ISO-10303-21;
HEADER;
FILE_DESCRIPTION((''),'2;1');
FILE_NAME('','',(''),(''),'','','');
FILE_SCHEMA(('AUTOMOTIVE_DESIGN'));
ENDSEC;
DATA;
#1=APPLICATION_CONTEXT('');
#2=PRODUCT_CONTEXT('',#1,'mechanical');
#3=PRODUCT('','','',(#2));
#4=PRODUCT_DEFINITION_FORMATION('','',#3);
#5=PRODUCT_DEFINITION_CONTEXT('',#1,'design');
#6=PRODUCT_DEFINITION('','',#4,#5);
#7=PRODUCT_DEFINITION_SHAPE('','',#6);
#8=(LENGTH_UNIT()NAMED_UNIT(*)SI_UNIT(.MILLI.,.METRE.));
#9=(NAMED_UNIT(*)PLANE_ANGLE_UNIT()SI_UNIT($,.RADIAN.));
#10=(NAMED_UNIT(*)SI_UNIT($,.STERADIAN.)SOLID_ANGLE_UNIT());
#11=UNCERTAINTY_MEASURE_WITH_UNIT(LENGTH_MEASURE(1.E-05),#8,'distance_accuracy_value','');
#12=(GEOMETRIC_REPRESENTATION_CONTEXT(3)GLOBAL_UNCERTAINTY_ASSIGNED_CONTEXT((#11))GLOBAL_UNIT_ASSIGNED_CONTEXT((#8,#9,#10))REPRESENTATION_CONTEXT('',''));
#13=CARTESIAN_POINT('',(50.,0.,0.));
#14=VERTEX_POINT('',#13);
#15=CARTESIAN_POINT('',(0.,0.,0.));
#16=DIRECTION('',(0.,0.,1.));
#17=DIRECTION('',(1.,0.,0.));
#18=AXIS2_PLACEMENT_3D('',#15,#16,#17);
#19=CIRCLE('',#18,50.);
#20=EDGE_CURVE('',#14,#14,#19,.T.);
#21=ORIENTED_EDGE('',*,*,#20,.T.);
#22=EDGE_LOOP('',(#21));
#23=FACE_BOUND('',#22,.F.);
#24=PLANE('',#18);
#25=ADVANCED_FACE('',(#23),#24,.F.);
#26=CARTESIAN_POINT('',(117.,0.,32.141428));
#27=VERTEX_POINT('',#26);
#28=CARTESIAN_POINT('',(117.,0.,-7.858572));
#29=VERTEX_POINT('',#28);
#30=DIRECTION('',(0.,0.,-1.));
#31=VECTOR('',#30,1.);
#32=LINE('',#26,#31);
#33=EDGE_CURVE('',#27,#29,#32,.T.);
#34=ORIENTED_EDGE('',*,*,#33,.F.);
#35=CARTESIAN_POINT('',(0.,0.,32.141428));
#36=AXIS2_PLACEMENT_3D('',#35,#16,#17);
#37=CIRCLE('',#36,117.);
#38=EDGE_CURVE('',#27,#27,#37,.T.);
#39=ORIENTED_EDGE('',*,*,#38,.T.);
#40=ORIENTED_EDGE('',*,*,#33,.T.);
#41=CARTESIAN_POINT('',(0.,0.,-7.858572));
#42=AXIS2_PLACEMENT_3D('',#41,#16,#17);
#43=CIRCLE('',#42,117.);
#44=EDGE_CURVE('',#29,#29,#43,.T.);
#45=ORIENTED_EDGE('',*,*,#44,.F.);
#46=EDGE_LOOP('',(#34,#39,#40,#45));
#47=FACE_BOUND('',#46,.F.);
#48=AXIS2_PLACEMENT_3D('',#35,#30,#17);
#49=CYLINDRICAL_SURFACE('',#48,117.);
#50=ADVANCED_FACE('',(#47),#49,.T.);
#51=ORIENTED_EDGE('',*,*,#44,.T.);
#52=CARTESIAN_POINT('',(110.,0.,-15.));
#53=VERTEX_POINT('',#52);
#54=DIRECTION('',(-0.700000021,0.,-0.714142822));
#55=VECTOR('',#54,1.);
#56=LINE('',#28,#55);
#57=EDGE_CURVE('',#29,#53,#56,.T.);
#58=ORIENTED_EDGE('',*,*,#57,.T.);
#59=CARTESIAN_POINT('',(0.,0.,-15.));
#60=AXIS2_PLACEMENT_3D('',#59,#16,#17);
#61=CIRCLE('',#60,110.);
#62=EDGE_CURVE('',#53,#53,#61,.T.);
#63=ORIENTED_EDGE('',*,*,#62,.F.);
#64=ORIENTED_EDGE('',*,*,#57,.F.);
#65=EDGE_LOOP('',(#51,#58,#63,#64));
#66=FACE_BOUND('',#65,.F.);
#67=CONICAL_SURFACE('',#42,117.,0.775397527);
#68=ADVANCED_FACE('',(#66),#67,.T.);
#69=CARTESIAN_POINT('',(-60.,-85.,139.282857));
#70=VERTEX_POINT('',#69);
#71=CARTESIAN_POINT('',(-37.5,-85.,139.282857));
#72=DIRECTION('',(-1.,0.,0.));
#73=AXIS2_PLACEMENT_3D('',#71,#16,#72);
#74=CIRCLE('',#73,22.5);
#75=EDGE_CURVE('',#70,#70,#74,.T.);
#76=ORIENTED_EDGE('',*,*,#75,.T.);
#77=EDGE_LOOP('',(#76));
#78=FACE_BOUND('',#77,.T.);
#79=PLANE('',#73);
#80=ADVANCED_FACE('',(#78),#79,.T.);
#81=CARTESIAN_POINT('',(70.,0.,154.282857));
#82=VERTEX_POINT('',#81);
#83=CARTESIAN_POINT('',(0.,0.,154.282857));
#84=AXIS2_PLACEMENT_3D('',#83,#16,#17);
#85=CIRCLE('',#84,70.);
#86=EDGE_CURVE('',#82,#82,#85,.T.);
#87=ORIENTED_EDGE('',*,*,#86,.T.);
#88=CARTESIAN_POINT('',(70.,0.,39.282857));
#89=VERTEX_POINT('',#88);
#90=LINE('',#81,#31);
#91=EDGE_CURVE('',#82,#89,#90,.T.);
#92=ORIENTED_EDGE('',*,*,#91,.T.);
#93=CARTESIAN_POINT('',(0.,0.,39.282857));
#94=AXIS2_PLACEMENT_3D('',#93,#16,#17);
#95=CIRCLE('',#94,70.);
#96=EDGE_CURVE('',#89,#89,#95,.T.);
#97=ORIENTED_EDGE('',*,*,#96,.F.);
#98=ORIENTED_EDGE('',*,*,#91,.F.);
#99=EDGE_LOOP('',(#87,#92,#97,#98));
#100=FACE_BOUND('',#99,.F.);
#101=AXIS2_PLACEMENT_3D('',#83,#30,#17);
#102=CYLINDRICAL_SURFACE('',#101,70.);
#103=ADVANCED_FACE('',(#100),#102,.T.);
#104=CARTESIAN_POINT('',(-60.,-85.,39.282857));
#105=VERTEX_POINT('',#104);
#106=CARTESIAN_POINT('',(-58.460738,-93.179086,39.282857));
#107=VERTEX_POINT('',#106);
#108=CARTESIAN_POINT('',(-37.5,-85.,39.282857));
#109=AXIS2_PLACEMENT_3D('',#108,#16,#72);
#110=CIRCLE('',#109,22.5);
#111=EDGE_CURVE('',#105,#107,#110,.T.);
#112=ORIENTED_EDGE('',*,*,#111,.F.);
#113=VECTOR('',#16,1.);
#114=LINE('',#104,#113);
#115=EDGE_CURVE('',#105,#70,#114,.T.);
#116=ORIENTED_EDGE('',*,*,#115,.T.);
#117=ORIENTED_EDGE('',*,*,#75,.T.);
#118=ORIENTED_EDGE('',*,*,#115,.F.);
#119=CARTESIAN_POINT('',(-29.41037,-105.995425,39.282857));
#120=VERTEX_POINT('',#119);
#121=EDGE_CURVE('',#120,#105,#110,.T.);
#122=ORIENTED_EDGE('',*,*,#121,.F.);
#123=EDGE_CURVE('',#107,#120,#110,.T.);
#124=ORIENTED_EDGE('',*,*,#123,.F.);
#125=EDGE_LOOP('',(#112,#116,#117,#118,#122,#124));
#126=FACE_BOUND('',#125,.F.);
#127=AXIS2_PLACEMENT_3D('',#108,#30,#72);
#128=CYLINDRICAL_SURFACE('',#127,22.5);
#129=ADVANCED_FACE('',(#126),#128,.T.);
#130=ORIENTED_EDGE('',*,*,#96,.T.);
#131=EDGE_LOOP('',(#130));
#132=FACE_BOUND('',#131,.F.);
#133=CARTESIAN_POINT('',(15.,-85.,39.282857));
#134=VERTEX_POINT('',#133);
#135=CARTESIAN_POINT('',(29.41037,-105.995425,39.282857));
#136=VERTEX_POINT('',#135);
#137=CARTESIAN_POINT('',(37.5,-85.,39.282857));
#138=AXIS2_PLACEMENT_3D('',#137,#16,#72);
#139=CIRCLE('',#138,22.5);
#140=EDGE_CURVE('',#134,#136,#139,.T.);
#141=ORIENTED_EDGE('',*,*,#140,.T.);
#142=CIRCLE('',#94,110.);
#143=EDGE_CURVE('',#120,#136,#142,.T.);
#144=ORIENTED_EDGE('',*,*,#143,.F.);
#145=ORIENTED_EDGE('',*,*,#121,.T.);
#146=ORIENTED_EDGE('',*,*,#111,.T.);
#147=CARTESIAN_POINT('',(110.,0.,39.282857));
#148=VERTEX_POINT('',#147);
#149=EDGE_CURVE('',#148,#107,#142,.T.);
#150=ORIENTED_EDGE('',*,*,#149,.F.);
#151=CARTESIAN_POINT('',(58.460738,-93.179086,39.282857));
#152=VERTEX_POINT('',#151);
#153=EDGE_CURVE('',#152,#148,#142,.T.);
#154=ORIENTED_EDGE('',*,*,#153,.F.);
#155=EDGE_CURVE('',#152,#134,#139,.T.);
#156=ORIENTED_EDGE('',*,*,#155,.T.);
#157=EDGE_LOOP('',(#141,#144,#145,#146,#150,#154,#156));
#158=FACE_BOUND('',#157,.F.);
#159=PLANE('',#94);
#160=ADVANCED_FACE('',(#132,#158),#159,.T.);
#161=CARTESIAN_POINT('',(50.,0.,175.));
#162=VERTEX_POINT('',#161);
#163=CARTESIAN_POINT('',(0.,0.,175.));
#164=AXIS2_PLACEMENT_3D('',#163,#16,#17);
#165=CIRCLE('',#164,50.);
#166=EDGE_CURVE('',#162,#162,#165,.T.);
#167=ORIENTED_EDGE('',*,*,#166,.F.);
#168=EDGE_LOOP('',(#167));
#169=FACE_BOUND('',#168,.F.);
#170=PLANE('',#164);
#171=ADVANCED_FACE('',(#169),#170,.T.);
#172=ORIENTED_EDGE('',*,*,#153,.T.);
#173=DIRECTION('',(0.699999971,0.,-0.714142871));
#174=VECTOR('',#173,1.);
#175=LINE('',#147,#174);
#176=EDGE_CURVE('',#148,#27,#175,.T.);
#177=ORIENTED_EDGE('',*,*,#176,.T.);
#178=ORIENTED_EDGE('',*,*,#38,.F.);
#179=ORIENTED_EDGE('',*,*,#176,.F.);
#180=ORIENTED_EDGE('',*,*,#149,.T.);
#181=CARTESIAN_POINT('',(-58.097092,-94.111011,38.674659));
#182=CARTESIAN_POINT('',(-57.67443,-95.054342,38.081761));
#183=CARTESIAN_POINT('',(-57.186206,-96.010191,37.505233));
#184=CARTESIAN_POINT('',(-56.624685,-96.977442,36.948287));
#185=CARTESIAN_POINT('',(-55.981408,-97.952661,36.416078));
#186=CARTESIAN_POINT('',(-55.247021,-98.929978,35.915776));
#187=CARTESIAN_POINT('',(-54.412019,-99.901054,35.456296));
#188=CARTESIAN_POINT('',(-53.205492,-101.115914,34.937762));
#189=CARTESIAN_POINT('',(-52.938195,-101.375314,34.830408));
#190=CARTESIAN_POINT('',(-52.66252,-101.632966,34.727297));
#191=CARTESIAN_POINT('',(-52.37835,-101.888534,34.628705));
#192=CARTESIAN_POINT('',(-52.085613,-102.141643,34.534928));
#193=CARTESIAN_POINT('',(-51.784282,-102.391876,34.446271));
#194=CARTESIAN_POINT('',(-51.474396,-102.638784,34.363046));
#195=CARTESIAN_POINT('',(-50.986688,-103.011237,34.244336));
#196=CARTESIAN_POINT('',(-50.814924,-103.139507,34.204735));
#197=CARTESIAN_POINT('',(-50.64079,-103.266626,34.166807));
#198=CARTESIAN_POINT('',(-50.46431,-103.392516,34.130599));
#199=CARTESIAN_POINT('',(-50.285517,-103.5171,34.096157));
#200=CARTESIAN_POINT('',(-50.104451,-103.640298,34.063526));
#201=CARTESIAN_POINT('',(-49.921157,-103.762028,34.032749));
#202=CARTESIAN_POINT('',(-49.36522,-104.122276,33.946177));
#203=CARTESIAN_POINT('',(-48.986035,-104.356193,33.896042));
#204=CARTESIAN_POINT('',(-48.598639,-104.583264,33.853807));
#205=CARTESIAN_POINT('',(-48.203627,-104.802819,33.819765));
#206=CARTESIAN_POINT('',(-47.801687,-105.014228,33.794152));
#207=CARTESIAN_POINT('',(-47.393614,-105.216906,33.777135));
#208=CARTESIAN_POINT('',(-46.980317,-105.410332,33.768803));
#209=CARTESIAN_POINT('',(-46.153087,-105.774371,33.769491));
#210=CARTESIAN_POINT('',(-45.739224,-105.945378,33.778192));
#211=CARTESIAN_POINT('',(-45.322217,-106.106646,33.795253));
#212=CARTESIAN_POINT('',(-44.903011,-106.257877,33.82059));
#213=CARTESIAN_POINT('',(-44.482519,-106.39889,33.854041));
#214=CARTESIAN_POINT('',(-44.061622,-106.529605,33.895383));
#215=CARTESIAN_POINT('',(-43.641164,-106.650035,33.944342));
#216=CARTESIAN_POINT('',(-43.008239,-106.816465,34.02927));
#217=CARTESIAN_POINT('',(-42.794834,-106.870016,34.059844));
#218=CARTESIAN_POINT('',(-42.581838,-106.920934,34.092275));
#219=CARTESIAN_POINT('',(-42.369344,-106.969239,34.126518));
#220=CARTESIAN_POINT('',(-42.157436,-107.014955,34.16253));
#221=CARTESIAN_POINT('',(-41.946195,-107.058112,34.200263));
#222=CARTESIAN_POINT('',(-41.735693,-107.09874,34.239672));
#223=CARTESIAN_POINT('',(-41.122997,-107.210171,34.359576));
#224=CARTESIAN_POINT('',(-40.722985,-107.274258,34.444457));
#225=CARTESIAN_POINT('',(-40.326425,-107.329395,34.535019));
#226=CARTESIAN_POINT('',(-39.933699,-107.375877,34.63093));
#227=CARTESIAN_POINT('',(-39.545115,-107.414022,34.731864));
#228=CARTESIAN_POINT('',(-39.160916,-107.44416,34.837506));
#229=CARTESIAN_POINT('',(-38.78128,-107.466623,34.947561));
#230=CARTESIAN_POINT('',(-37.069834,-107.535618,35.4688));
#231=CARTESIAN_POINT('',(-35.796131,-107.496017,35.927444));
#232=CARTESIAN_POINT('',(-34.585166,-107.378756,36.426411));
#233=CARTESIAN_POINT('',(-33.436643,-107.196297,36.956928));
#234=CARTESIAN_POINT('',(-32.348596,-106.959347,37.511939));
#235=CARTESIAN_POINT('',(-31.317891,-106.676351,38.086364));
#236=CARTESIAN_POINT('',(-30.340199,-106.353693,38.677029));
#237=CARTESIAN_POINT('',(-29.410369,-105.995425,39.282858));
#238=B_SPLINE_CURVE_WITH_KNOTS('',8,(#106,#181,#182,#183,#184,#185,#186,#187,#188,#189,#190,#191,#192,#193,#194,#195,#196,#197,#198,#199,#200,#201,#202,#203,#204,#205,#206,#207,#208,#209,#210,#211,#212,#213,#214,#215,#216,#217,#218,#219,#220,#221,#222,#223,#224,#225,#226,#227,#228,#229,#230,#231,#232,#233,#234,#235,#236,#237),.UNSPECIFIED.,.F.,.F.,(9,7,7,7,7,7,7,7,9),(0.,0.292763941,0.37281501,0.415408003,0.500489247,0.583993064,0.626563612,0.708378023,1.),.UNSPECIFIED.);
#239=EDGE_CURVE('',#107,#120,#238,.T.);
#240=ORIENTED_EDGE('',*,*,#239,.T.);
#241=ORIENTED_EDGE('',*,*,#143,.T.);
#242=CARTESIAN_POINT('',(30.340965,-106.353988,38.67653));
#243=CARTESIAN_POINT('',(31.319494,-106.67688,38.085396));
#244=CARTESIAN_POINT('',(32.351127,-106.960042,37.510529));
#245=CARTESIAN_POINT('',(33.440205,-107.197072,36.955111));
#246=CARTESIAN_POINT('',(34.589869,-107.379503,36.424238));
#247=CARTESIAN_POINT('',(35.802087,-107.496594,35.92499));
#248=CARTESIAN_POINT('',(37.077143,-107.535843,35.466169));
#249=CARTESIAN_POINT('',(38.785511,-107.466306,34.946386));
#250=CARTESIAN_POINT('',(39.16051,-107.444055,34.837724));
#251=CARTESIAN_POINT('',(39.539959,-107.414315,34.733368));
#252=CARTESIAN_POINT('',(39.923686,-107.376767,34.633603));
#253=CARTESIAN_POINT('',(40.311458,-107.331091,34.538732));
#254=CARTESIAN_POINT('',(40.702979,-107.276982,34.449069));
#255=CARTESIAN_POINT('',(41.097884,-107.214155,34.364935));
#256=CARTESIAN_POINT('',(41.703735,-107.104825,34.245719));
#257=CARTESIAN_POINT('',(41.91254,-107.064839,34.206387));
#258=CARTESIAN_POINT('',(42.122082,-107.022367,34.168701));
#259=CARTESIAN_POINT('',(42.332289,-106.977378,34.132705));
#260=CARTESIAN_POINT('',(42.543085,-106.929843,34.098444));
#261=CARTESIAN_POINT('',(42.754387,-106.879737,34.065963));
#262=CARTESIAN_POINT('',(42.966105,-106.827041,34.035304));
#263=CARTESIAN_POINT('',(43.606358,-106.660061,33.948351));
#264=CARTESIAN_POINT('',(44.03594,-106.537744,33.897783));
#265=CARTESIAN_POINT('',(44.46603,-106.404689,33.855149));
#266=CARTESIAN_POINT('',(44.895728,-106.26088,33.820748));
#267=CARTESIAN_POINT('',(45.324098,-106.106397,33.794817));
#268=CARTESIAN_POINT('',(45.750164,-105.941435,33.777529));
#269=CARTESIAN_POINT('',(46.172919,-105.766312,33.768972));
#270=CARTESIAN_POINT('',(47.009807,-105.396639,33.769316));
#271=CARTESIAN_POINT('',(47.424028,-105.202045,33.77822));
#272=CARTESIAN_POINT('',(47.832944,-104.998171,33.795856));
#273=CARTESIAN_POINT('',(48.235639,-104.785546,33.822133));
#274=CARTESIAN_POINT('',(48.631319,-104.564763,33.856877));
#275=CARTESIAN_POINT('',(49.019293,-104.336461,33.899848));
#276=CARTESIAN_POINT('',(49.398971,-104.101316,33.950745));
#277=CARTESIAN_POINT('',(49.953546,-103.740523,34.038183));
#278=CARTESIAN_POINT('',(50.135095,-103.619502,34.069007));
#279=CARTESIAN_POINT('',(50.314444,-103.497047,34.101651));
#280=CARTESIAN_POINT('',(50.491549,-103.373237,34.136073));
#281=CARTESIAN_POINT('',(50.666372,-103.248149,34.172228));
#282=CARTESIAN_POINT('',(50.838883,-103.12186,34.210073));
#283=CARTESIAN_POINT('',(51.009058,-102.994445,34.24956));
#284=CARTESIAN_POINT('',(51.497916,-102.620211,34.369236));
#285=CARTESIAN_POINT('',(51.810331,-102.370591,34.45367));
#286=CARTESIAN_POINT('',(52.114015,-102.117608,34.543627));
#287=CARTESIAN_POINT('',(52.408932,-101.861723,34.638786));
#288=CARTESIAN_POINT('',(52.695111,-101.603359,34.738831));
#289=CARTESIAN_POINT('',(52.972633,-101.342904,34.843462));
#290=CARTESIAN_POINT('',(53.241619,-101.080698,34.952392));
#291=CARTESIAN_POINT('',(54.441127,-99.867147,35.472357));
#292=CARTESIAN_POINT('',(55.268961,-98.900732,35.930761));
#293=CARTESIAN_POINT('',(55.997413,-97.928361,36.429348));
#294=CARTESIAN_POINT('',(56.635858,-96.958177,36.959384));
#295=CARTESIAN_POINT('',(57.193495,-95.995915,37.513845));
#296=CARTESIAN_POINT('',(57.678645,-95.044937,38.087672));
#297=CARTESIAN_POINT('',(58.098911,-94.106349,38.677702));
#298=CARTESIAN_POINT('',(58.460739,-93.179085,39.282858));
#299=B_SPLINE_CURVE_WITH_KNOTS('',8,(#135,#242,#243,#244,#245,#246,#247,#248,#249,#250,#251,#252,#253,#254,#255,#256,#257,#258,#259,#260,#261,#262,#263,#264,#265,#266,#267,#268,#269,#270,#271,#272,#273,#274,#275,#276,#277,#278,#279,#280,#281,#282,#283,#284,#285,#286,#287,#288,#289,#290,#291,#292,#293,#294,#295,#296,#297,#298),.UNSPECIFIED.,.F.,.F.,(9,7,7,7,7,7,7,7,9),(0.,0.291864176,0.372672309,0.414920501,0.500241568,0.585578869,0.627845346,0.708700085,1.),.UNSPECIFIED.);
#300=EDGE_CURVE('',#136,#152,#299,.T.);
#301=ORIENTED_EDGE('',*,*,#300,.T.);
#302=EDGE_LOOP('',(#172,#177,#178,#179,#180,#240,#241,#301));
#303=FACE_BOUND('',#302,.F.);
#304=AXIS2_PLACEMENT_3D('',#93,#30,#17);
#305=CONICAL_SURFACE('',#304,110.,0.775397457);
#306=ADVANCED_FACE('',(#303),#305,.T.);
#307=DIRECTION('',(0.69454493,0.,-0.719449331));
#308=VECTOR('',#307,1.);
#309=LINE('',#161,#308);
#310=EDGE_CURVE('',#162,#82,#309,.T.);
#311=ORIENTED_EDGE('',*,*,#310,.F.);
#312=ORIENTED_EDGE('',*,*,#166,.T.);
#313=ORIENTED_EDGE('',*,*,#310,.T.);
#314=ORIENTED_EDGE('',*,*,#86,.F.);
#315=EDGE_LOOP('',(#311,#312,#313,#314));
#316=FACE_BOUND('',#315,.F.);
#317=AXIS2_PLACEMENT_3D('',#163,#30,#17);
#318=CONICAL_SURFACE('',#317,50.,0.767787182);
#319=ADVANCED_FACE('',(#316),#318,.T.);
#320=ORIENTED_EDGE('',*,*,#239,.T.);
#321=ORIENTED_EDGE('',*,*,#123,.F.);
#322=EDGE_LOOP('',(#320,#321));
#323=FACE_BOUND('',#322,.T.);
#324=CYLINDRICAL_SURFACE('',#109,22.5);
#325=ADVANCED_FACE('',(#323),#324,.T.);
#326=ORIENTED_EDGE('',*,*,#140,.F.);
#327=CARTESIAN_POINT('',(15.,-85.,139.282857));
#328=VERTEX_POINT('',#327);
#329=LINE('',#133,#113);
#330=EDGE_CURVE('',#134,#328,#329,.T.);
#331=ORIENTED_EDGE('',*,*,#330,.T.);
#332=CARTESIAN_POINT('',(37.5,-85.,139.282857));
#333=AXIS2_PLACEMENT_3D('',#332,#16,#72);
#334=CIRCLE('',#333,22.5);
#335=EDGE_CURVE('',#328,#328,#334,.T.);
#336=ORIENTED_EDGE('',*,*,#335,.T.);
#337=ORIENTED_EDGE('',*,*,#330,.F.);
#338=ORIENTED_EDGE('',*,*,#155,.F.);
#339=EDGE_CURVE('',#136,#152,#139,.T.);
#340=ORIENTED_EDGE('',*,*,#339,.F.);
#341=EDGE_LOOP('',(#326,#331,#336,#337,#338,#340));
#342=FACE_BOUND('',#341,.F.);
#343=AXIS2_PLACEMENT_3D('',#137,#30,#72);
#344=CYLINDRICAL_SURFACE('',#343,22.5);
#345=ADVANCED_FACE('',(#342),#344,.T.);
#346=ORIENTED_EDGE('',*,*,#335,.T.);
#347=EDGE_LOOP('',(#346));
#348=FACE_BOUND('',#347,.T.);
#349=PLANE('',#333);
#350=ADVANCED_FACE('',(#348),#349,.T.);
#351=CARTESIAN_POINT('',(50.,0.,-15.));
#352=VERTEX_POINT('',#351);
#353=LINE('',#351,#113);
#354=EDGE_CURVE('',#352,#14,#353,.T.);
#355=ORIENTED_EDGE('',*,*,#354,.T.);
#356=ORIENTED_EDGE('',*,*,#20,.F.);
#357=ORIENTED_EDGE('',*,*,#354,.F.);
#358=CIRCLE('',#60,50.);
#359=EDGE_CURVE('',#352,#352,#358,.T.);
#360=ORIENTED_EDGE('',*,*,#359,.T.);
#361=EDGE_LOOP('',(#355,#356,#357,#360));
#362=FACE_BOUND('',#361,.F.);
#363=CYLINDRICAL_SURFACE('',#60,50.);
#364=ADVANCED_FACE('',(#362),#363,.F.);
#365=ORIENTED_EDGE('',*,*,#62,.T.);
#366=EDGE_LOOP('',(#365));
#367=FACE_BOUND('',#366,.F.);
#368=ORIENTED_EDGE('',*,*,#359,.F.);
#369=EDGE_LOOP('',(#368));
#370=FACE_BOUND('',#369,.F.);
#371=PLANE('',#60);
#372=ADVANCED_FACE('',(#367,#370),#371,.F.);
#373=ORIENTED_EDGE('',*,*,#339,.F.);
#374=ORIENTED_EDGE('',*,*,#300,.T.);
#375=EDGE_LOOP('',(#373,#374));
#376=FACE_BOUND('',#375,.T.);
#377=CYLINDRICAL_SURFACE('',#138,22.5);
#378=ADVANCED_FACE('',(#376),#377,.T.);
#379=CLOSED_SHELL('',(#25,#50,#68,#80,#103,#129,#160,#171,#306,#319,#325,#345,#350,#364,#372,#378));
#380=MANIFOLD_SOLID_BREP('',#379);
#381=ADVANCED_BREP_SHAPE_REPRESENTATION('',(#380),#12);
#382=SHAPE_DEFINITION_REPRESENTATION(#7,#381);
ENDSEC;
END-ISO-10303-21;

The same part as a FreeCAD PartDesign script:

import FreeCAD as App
import Part
import Sketcher

V = App.Vector
Q = App.Units.Quantity


def add_polygon(sketch, points):
    """Adds a closed chain of lines whose ends are joined by coincident constraints."""
    first, n = sketch.GeometryCount, len(points)
    for a, b in zip(points, points[1:] + points[:1]):
        sketch.addGeometry(Part.LineSegment(App.Vector(*a, 0), App.Vector(*b, 0)), False)
    for i in range(n):
        sketch.addConstraint(Sketcher.Constraint("Coincident", first + i, 2, first + (i + 1) % n, 1))

doc = App.newDocument("Part")
body = doc.addObject("PartDesign::Body", "Body")

sketch1 = doc.addObject("Sketcher::SketchObject", "Sketch")
body.addObject(sketch1)
sketch1.AttachmentSupport = (doc.XZ_Plane, [""])
sketch1.MapMode = "FlatFace"
add_polygon(sketch1, [(110, 39), (70, 39), (70, 154), (50, 175), (0, 175), (0, 0), (50, 0), (50, -15), (110, -15), (117, -8), (117, 32)])
sketch1.addConstraint(Sketcher.Constraint("Horizontal", 0))
sketch1.addConstraint(Sketcher.Constraint("Vertical", 1))
sketch1.addConstraint(Sketcher.Constraint("Horizontal", 3))
sketch1.addConstraint(Sketcher.Constraint("Vertical", 4))
sketch1.addConstraint(Sketcher.Constraint("Horizontal", 5))
sketch1.addConstraint(Sketcher.Constraint("Vertical", 6))
sketch1.addConstraint(Sketcher.Constraint("Horizontal", 7))
sketch1.addConstraint(Sketcher.Constraint("Vertical", 9))
sketch1.addConstraint(Sketcher.Constraint("Coincident", 4, 2, -1, 1))
sketch1.addConstraint(Sketcher.Constraint("Vertical", 2, 2, 5, 2))
sketch1.addConstraint(Sketcher.Constraint("Vertical", 7, 2, 10, 2))
sketch1.addConstraint(Sketcher.Constraint("Equal", 0, 9))
sketch1.addConstraint(Sketcher.Constraint("Equal", 8, 10))
sketch1.addConstraint(Sketcher.Constraint("DistanceX", 0, 2, 0, 1, Q("40 mm")))
sketch1.addConstraint(Sketcher.Constraint("DistanceX", 3, 2, 3, 1, Q("50 mm")))
sketch1.addConstraint(Sketcher.Constraint("DistanceX", 7, 1, 7, 2, Q("60 mm")))
sketch1.addConstraint(Sketcher.Constraint("DistanceY", 1, 1, 1, 2, Q("115 mm")))
sketch1.addConstraint(Sketcher.Constraint("DistanceY", 4, 2, 4, 1, Q("175 mm")))
sketch1.addConstraint(Sketcher.Constraint("DistanceY", 6, 2, 6, 1, Q("15 mm")))
sketch1.addConstraint(Sketcher.Constraint("Distance", 8, Q("10 mm")))
sketch1.addConstraint(Sketcher.Constraint("DistanceX", -1, 1, 8, 2, Q("117 mm")))
revolution = doc.addObject("PartDesign::Revolution", "Revolution")
body.addObject(revolution)
revolution.Profile = sketch1
revolution.ReferenceAxis = (sketch1, ["V_Axis"])
revolution.Angle = 360

sketch2 = doc.addObject("Sketcher::SketchObject", "Sketch001")
body.addObject(sketch2)
sketch2.AttachmentSupport = (doc.XY_Plane, [""])
sketch2.MapMode = "FlatFace"
sketch2.AttachmentOffset = App.Placement(V(0, 0, 39.282857), App.Rotation())
sketch2.addGeometry(Part.Circle(V(38, -85, 0), V(0, 0, 1), 22), False)
sketch2.addGeometry(Part.Circle(V(-38, -85, 0), V(0, 0, 1), 22), False)
sketch2.addConstraint(Sketcher.Constraint("Equal", 0, 1))
sketch2.addConstraint(Sketcher.Constraint("Symmetric", 0, 3, 1, 3, -2))
sketch2.addConstraint(Sketcher.Constraint("Diameter", 0, Q("45 mm")))
sketch2.addConstraint(Sketcher.Constraint("DistanceY", 0, 3, -1, 1, Q("85 mm")))
sketch2.addConstraint(Sketcher.Constraint("DistanceX", 1, 3, 0, 3, Q("75 mm")))
pad1 = doc.addObject("PartDesign::Pad", "Pad")
body.addObject(pad1)
pad1.Profile = sketch2
pad1.Type = "TwoLengths"
pad1.Length = 100
pad1.Length2 = 40

doc.recompute()
